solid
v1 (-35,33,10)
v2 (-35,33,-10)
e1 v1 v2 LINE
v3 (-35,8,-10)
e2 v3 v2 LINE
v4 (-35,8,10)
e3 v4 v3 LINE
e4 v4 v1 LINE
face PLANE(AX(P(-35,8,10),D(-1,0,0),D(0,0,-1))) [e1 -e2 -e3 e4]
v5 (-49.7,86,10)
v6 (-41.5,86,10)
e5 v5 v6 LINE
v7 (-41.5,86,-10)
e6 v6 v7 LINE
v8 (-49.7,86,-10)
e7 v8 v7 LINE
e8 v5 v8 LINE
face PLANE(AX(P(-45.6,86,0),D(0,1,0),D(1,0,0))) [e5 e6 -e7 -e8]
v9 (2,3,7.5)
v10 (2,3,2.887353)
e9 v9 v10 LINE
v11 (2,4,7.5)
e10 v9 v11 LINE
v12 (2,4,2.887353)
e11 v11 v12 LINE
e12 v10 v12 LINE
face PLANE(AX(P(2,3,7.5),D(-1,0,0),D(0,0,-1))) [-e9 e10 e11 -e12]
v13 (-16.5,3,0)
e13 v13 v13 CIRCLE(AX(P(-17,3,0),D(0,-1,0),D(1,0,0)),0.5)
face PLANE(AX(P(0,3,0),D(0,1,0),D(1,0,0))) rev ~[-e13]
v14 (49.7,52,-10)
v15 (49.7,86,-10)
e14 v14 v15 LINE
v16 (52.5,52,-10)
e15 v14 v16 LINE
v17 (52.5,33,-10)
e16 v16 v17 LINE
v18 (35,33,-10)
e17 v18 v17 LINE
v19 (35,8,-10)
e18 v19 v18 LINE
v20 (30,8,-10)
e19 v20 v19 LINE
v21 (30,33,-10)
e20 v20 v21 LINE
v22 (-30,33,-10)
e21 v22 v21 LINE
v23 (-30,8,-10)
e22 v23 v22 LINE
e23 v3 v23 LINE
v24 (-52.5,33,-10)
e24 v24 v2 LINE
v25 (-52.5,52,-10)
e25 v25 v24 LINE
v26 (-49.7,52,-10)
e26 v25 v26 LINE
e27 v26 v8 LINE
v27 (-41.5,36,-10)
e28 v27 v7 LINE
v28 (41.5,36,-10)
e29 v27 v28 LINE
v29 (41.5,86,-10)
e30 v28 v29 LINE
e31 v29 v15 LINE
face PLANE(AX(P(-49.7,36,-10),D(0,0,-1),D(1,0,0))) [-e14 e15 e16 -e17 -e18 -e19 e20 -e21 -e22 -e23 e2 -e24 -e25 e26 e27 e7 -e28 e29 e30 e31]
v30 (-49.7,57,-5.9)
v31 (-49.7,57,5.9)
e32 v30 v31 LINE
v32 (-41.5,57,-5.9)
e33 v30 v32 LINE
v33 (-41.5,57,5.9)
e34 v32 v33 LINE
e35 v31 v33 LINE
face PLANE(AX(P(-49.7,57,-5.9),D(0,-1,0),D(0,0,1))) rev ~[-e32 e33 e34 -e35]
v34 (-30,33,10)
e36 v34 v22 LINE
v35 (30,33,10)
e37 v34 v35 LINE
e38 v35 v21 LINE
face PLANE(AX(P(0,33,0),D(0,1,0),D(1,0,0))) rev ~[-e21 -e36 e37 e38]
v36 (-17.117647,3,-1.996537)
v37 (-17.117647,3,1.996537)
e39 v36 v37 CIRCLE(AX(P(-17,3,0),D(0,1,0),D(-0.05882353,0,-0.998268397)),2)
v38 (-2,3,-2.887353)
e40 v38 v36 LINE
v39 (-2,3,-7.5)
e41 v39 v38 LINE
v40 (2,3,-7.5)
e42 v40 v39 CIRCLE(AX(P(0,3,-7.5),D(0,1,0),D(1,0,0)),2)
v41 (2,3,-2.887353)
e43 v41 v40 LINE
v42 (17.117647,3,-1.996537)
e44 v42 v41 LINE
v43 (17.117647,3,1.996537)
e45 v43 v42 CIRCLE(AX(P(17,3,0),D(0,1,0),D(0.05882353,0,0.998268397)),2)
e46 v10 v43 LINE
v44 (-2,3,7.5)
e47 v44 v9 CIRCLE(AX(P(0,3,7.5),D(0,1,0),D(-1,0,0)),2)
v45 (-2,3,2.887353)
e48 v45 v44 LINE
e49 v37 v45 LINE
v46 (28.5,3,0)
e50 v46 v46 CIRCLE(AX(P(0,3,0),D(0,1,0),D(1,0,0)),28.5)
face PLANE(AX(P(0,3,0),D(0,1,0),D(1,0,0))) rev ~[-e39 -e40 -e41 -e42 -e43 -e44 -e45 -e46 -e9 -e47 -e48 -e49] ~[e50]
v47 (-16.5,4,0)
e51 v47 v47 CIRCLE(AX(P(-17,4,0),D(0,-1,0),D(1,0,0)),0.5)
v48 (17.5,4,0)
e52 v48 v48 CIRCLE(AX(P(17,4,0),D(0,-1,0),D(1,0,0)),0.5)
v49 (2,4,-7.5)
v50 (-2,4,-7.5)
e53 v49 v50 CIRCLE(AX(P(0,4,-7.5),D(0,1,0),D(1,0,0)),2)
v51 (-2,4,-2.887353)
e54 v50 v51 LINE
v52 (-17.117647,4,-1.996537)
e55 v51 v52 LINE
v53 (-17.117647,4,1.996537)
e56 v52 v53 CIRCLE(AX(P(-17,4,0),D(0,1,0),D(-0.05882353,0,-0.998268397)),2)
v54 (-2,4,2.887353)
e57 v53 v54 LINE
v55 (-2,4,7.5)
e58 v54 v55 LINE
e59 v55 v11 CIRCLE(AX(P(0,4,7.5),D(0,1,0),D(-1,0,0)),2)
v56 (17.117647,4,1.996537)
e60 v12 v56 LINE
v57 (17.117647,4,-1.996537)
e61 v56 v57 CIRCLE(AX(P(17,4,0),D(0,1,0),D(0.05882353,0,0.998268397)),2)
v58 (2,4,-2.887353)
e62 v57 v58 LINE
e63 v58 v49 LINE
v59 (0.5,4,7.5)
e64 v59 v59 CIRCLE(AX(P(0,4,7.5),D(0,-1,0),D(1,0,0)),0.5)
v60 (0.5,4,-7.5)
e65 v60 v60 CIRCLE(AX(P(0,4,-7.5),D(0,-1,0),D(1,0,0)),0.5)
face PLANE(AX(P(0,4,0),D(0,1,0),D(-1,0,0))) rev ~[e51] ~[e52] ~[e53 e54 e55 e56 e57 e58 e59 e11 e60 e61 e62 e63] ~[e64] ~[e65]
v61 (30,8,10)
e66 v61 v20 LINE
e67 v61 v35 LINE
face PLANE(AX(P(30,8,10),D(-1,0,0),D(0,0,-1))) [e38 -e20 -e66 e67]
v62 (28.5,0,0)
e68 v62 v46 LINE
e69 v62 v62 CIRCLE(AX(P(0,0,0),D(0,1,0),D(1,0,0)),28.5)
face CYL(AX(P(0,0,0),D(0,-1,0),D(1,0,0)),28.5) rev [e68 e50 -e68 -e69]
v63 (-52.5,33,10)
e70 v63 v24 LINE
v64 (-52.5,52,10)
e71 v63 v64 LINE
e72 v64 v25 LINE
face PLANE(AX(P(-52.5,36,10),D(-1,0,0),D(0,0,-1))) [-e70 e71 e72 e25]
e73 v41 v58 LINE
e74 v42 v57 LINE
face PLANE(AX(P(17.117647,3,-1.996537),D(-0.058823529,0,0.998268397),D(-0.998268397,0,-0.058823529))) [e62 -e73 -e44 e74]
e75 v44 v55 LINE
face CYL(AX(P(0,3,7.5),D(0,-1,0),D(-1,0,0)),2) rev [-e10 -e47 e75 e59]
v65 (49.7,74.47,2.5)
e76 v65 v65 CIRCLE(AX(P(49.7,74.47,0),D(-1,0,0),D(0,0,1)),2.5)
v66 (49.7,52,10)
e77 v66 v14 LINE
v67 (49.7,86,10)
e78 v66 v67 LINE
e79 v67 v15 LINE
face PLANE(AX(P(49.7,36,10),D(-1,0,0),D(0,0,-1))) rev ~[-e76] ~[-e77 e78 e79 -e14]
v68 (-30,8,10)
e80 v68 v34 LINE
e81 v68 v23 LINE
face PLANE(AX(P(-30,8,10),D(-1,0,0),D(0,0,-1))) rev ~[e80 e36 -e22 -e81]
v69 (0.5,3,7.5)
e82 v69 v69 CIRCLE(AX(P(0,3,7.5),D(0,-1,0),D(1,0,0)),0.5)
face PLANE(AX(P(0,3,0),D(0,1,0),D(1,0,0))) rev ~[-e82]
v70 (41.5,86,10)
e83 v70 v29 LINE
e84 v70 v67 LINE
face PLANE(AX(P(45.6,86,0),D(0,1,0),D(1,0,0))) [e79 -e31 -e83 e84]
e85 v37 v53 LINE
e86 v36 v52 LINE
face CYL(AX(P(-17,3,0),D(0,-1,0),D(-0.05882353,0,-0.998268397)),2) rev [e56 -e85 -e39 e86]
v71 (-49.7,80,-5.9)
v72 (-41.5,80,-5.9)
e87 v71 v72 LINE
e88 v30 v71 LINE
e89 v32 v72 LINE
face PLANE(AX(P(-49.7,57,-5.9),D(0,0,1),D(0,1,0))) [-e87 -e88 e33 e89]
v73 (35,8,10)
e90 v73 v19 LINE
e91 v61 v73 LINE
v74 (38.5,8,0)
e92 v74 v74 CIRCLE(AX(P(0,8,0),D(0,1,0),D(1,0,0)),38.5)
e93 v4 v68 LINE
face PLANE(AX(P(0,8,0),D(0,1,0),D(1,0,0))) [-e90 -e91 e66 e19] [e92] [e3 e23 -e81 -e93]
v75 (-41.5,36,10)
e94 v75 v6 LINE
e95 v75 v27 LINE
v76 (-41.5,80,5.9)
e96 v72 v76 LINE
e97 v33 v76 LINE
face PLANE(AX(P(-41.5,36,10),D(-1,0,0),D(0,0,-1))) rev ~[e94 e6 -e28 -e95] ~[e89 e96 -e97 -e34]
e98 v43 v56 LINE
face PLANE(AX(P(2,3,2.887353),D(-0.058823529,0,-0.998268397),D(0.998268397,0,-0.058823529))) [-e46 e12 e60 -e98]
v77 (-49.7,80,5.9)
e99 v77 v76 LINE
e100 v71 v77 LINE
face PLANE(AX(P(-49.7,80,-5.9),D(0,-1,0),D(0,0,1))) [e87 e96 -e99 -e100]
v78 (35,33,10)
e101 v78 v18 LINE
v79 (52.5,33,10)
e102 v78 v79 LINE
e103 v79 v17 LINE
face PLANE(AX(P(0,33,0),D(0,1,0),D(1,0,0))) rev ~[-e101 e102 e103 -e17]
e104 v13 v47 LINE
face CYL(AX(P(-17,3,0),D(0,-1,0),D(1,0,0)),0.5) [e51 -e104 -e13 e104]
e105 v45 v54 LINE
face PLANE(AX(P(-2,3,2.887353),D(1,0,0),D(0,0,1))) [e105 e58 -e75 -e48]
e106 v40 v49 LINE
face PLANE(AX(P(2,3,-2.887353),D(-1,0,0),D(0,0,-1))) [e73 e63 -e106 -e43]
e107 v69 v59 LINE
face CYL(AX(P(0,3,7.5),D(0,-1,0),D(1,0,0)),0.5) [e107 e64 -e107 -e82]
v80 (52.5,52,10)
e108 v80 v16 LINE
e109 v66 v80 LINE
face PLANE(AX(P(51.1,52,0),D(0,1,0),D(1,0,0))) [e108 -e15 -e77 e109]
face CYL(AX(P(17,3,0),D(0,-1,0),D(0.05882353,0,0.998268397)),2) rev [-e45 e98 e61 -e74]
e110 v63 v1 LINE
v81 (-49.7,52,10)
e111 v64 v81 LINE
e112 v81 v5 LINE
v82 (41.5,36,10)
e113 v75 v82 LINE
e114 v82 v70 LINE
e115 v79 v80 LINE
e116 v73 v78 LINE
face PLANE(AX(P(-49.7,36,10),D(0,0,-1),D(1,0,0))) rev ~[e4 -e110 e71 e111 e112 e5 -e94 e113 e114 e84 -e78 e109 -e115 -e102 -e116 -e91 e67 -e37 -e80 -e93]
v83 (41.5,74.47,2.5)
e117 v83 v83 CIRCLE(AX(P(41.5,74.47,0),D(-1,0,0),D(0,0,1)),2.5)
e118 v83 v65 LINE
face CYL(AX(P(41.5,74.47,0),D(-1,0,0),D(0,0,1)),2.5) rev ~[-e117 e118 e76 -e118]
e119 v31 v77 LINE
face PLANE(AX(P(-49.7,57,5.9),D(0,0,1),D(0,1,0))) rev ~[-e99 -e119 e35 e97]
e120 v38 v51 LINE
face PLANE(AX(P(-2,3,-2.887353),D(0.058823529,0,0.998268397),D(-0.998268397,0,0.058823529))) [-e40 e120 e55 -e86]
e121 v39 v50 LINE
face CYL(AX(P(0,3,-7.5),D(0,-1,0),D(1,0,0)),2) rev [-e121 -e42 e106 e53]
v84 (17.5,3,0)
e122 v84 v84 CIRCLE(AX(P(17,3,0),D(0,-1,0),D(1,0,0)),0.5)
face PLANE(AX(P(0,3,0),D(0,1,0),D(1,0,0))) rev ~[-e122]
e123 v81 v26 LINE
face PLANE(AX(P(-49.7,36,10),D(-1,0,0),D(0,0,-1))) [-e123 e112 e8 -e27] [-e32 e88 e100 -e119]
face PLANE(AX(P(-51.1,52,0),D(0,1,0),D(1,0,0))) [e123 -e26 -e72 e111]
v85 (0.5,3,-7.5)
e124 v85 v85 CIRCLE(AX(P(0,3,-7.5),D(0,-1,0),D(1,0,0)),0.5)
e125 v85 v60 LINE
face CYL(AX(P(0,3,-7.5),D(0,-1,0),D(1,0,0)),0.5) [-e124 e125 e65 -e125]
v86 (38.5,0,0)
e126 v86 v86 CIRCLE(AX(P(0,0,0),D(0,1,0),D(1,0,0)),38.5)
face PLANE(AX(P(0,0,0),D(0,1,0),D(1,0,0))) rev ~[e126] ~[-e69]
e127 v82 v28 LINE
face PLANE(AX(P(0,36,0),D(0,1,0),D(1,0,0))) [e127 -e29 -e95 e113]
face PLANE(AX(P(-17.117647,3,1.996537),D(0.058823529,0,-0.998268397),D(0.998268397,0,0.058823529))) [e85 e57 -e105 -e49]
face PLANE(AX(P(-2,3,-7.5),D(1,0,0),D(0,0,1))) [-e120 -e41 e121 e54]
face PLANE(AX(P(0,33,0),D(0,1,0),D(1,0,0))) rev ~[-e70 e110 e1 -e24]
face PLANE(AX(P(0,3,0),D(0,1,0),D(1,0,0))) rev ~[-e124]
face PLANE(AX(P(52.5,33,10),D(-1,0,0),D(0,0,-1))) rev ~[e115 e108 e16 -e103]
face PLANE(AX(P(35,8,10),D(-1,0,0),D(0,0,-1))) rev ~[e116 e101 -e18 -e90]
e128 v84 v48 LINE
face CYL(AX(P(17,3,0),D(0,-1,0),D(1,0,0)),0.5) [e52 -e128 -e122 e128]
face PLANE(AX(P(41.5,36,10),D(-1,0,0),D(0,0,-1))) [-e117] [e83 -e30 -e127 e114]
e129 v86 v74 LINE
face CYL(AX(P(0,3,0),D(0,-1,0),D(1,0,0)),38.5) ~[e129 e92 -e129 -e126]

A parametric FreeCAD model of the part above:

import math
import FreeCAD as App
import Part
import Sketcher
from FreeCAD import Vector


def add_polygon(sketch, points):
    """Adds a closed chain of lines whose ends are joined by coincident constraints."""
    first, n = sketch.GeometryCount, len(points)
    for a, b in zip(points, points[1:] + points[:1]):
        sketch.addGeometry(Part.LineSegment(App.Vector(*a, 0), App.Vector(*b, 0)), False)
    for i in range(n):
        sketch.addConstraint(Sketcher.Constraint("Coincident", first + i, 2, first + (i + 1) % n, 1))

doc = App.newDocument("Part")
body = doc.addObject("PartDesign::Body", "Body")

# Sketch on XZ plane
sketch1 = body.newObject("Sketcher::SketchObject", "Sketch")
sketch1.AttachmentSupport = (doc.getObject("XZ_Plane"), [""])
sketch1.MapMode = "FlatFace"
sketch1.addGeometry(Part.Circle(Vector(0, 0, 0), Vector(0, 0, 1), 38), False)
sketch1.addGeometry(Part.Circle(Vector(0, 0, 0), Vector(0, 0, 1), 28), False)
sketch1.addConstraint(Sketcher.Constraint("Coincident", 0, 3, -1, 1))
sketch1.addConstraint(Sketcher.Constraint("Coincident", 1, 3, -1, 1))
sketch1.addConstraint(Sketcher.Constraint("Diameter", 0, 77.0))
sketch1.addConstraint(Sketcher.Constraint("Diameter", 1, 57.0))
pad1 = body.newObject("PartDesign::Pad", "Pad")
pad1.Profile = sketch1
pad1.Length = 3
pad1.Reversed = True

# Sketch on XZ plane
sketch2 = body.newObject("Sketcher::SketchObject", "Sketch001")
sketch2.AttachmentSupport = (doc.getObject("XZ_Plane"), [""])
sketch2.MapMode = "FlatFace"
sketch2.AttachmentOffset = App.Placement(Vector(0, 0, -3), App.Rotation())
sketch2.addGeometry(Part.Circle(Vector(0, 0, 0), Vector(0, 0, 1), 38), False)
sketch2.addConstraint(Sketcher.Constraint("Coincident", 0, 3, -1, 1))
sketch2.addConstraint(Sketcher.Constraint("Diameter", 0, 77.0))
pad2 = body.newObject("PartDesign::Pad", "Pad001")
pad2.Profile = sketch2
pad2.Length = 5
pad2.Reversed = True

# Sketch on XZ plane
sketch3 = body.newObject("Sketcher::SketchObject", "Sketch002")
sketch3.AttachmentSupport = (doc.getObject("XZ_Plane"), [""])
sketch3.MapMode = "FlatFace"
sketch3.AttachmentOffset = App.Placement(Vector(0, 0, -8), App.Rotation())
add_polygon(sketch3, [(-35, -10), (-35, 10), (-30, 10), (-30, -10)])  # lines 0-3
add_polygon(sketch3, [(30, -10), (30, 10), (35, 10), (35, -10)])  # lines 4-7
sketch3.addConstraint(Sketcher.Constraint("Vertical", 0))
sketch3.addConstraint(Sketcher.Constraint("Horizontal", 1))
sketch3.addConstraint(Sketcher.Constraint("Vertical", 2))
sketch3.addConstraint(Sketcher.Constraint("Horizontal", 3))
sketch3.addConstraint(Sketcher.Constraint("Vertical", 4))
sketch3.addConstraint(Sketcher.Constraint("Horizontal", 5))
sketch3.addConstraint(Sketcher.Constraint("Vertical", 6))
sketch3.addConstraint(Sketcher.Constraint("Horizontal", 7))
sketch3.addConstraint(Sketcher.Constraint("Symmetric", 2, 2, 4, 2, -1, 1))
sketch3.addConstraint(Sketcher.Constraint("Symmetric", 0, 2, 6, 2, -1, 1))
sketch3.addConstraint(Sketcher.Constraint("Horizontal", 1, 2, 4, 2))
sketch3.addConstraint(Sketcher.Constraint("DistanceX", 1, 1, 1, 2, 5.0))
sketch3.addConstraint(Sketcher.Constraint("DistanceY", 0, 1, 0, 2, 20.0))
sketch3.addConstraint(Sketcher.Constraint("DistanceX", 0, 2, -1, 1, 35.0))
pad3 = body.newObject("PartDesign::Pad", "Pad002")
pad3.Profile = sketch3
pad3.Length = 25
pad3.Reversed = True

# Sketch on XZ plane
sketch4 = body.newObject("Sketcher::SketchObject", "Sketch003")
sketch4.AttachmentSupport = (doc.getObject("XZ_Plane"), [""])
sketch4.MapMode = "FlatFace"
sketch4.AttachmentOffset = App.Placement(Vector(0, 0, -33), App.Rotation())
add_polygon(sketch4, [(-52, -10), (-52, 10), (52, 10), (52, -10)])  # lines 0-3
sketch4.addConstraint(Sketcher.Constraint("Vertical", 0))
sketch4.addConstraint(Sketcher.Constraint("Horizontal", 1))
sketch4.addConstraint(Sketcher.Constraint("Vertical", 2))
sketch4.addConstraint(Sketcher.Constraint("Horizontal", 3))
sketch4.addConstraint(Sketcher.Constraint("Symmetric", 0, 2, 2, 2, -1, 1))
sketch4.addConstraint(Sketcher.Constraint("DistanceX", 1, 1, 1, 2, 105.0))
sketch4.addConstraint(Sketcher.Constraint("DistanceY", 0, 1, 0, 2, 20.0))
pad4 = body.newObject("PartDesign::Pad", "Pad003")
pad4.Profile = sketch4
pad4.Length = 3
pad4.Reversed = True

# Sketch on XZ plane
sketch5 = body.newObject("Sketcher::SketchObject", "Sketch004")
sketch5.AttachmentSupport = (doc.getObject("XZ_Plane"), [""])
sketch5.MapMode = "FlatFace"
sketch5.AttachmentOffset = App.Placement(Vector(0, 0, -36), App.Rotation())
add_polygon(sketch5, [(-52.5, -10), (-52.5, 10), (-49.7, 10), (-49.7, -10)])  # lines 0-3
add_polygon(sketch5, [(49.7, -10), (49.7, 10), (52.5, 10), (52.5, -10)])  # lines 4-7
sketch5.addConstraint(Sketcher.Constraint("Vertical", 0))
sketch5.addConstraint(Sketcher.Constraint("Horizontal", 1))
sketch5.addConstraint(Sketcher.Constraint("Vertical", 2))
sketch5.addConstraint(Sketcher.Constraint("Horizontal", 3))
sketch5.addConstraint(Sketcher.Constraint("Vertical", 4))
sketch5.addConstraint(Sketcher.Constraint("Horizontal", 5))
sketch5.addConstraint(Sketcher.Constraint("Vertical", 6))
sketch5.addConstraint(Sketcher.Constraint("Horizontal", 7))
sketch5.addConstraint(Sketcher.Constraint("Symmetric", 2, 2, 4, 2, -1, 1))
sketch5.addConstraint(Sketcher.Constraint("Symmetric", 0, 2, 6, 2, -1, 1))
sketch5.addConstraint(Sketcher.Constraint("Horizontal", 1, 2, 4, 2))
sketch5.addConstraint(Sketcher.Constraint("DistanceY", 0, 1, 0, 2, 20.0))
sketch5.addConstraint(Sketcher.Constraint("DistanceX", 1, 1, 1, 2, 2.8))
sketch5.addConstraint(Sketcher.Constraint("DistanceX", 0, 2, 5, 2, 105.0))
pad5 = body.newObject("PartDesign::Pad", "Pad004")
pad5.Profile = sketch5
pad5.Length = 16
pad5.Reversed = True

# Sketch on XZ plane
sketch6 = body.newObject("Sketcher::SketchObject", "Sketch005")
sketch6.AttachmentSupport = (doc.getObject("XZ_Plane"), [""])
sketch6.MapMode = "FlatFace"
sketch6.AttachmentOffset = App.Placement(Vector(0, 0, -36), App.Rotation())
add_polygon(sketch6, [(-50, -10), (-50, 10), (-42, 10), (-42, -10)])  # lines 0-3
add_polygon(sketch6, [(42, -10), (42, 10), (50, 10), (50, -10)])  # lines 4-7
sketch6.addConstraint(Sketcher.Constraint("Vertical", 0))
sketch6.addConstraint(Sketcher.Constraint("Horizontal", 1))
sketch6.addConstraint(Sketcher.Constraint("Vertical", 2))
sketch6.addConstraint(Sketcher.Constraint("Horizontal", 3))
sketch6.addConstraint(Sketcher.Constraint("Vertical", 4))
sketch6.addConstraint(Sketcher.Constraint("Horizontal", 5))
sketch6.addConstraint(Sketcher.Constraint("Vertical", 6))
sketch6.addConstraint(Sketcher.Constraint("Horizontal", 7))
sketch6.addConstraint(Sketcher.Constraint("Symmetric", 2, 2, 4, 2, -1, 1))
sketch6.addConstraint(Sketcher.Constraint("Symmetric", 0, 2, 6, 2, -1, 1))
sketch6.addConstraint(Sketcher.Constraint("Horizontal", 1, 2, 4, 2))
sketch6.addConstraint(Sketcher.Constraint("DistanceY", 0, 1, 0, 2, 20.0))
sketch6.addConstraint(Sketcher.Constraint("DistanceX", 1, 1, 1, 2, 8.2))
sketch6.addConstraint(Sketcher.Constraint("DistanceX", 1, 2, 4, 2, 83.0))
pad6 = body.newObject("PartDesign::Pad", "Pad005")
pad6.Profile = sketch6
pad6.Length = 50
pad6.Reversed = True

# Sketch on YZ plane
sketch7 = body.newObject("Sketcher::SketchObject", "Sketch006")
sketch7.AttachmentSupport = (doc.getObject("YZ_Plane"), [""])
sketch7.MapMode = "FlatFace"
sketch7.AttachmentOffset = App.Placement(Vector(0, 0, -49.7), App.Rotation())
add_polygon(sketch7, [(80, -6), (57, -6), (57, 6), (80, 6)])  # lines 0-3
sketch7.addConstraint(Sketcher.Constraint("Horizontal", 0))
sketch7.addConstraint(Sketcher.Constraint("Vertical", 1))
sketch7.addConstraint(Sketcher.Constraint("Horizontal", 2))
sketch7.addConstraint(Sketcher.Constraint("Vertical", 3))
sketch7.addConstraint(Sketcher.Constraint("DistanceX", 0, 2, 0, 1, 23.0))
sketch7.addConstraint(Sketcher.Constraint("DistanceY", 1, 1, 1, 2, 11.8))
sketch7.addConstraint(Sketcher.Constraint("DistanceX", -1, 1, 0, 2, 57.0))
sketch7.addConstraint(Sketcher.Constraint("DistanceY", 0, 2, -1, 1, 5.9))
pocket1 = body.newObject("PartDesign::Pocket", "Pocket")
pocket1.Profile = sketch7
pocket1.Length = 50
pocket1.Reversed = True

# Sketch on YZ plane
sketch8 = body.newObject("Sketcher::SketchObject", "Sketch007")
sketch8.AttachmentSupport = (doc.getObject("YZ_Plane"), [""])
sketch8.MapMode = "FlatFace"
sketch8.AttachmentOffset = App.Placement(Vector(0, 0, 41.5), App.Rotation())
sketch8.addGeometry(Part.Circle(Vector(74.5, 0, 0), Vector(0, 0, 1), 2.5), False)
sketch8.addConstraint(Sketcher.Constraint("PointOnObject", 0, 3, -1))
sketch8.addConstraint(Sketcher.Constraint("Diameter", 0, 5.0))
sketch8.addConstraint(Sketcher.Constraint("DistanceX", -1, 1, 0, 3, 74.47))
pocket2 = body.newObject("PartDesign::Pocket", "Pocket001")
pocket2.Profile = sketch8
pocket2.Length = 50
pocket2.Reversed = True

# Sketch on XZ plane
sketch9 = body.newObject("Sketcher::SketchObject", "Sketch008")
sketch9.AttachmentSupport = (doc.getObject("XZ_Plane"), [""])
sketch9.MapMode = "FlatFace"
sketch9.AttachmentOffset = App.Placement(Vector(0, 0, -3), App.Rotation())
sketch9.addGeometry(Part.LineSegment(Vector(2, 2.9, 0), Vector(2, 7.5, 0)), False)
sketch9.addGeometry(Part.ArcOfCircle(Part.Circle(Vector(0, 7.5, 0), Vector(0, 0, 1), 2), math.radians(0), math.radians(180)), False)
sketch9.addGeometry(Part.LineSegment(Vector(-2, 7.5, 0), Vector(-2, 2.9, 0)), False)
sketch9.addGeometry(Part.LineSegment(Vector(-2, 2.9, 0), Vector(-17.1, 2, 0)), False)
sketch9.addGeometry(Part.ArcOfCircle(Part.Circle(Vector(-17, 0, 0), Vector(0, 0, 1), 2), math.radians(93), math.radians(267)), False)
sketch9.addGeometry(Part.LineSegment(Vector(-17.1, -2, 0), Vector(-2, -2.9, 0)), False)
sketch9.addGeometry(Part.LineSegment(Vector(-2, -2.9, 0), Vector(-2, -7.5, 0)), False)
sketch9.addGeometry(Part.ArcOfCircle(Part.Circle(Vector(0, -7.5, 0), Vector(0, 0, 1), 2), math.radians(180), math.radians(360)), False)
sketch9.addGeometry(Part.LineSegment(Vector(2, -7.5, 0), Vector(2, -2.9, 0)), False)
sketch9.addGeometry(Part.LineSegment(Vector(2, -2.9, 0), Vector(17.1, -2, 0)), False)
sketch9.addGeometry(Part.ArcOfCircle(Part.Circle(Vector(17, 0, 0), Vector(0, 0, 1), 2), math.radians(-87), math.radians(87)), False)
sketch9.addGeometry(Part.LineSegment(Vector(17.1, 2, 0), Vector(2, 2.9, 0)), False)
sketch9.addGeometry(Part.Circle(Vector(0, -7.5, 0), Vector(0, 0, 1), 0.5), False)
sketch9.addGeometry(Part.Circle(Vector(17, 0, 0), Vector(0, 0, 1), 0.5), False)
sketch9.addGeometry(Part.Circle(Vector(-17, 0, 0), Vector(0, 0, 1), 0.5), False)
sketch9.addGeometry(Part.Circle(Vector(0, 7.5, 0), Vector(0, 0, 1), 0.5), False)
sketch9.addConstraint(Sketcher.Constraint("Tangent", 0, 2, 1, 1))
sketch9.addConstraint(Sketcher.Constraint("Tangent", 1, 2, 2, 1))
sketch9.addConstraint(Sketcher.Constraint("Coincident", 2, 2, 3, 1))
sketch9.addConstraint(Sketcher.Constraint("Tangent", 3, 2, 4, 1))
sketch9.addConstraint(Sketcher.Constraint("Tangent", 4, 2, 5, 1))
sketch9.addConstraint(Sketcher.Constraint("Coincident", 5, 2, 6, 1))
sketch9.addConstraint(Sketcher.Constraint("Tangent", 6, 2, 7, 1))
sketch9.addConstraint(Sketcher.Constraint("Tangent", 7, 2, 8, 1))
sketch9.addConstraint(Sketcher.Constraint("Coincident", 8, 2, 9, 1))
sketch9.addConstraint(Sketcher.Constraint("Tangent", 9, 2, 10, 1))
sketch9.addConstraint(Sketcher.Constraint("Tangent", 10, 2, 11, 1))
sketch9.addConstraint(Sketcher.Constraint("Coincident", 11, 2, 0, 1))
sketch9.addConstraint(Sketcher.Constraint("Vertical", 0))
sketch9.addConstraint(Sketcher.Constraint("Vertical", 2))
sketch9.addConstraint(Sketcher.Constraint("Vertical", 6))
sketch9.addConstraint(Sketcher.Constraint("Vertical", 8))
sketch9.addConstraint(Sketcher.Constraint("Coincident", 12, 3, 7, 3))
sketch9.addConstraint(Sketcher.Constraint("Coincident", 13, 3, 10, 3))
sketch9.addConstraint(Sketcher.Constraint("Coincident", 14, 3, 4, 3))
sketch9.addConstraint(Sketcher.Constraint("Coincident", 15, 3, 1, 3))
sketch9.addConstraint(Sketcher.Constraint("Equal", 1, 4))
sketch9.addConstraint(Sketcher.Constraint("Equal", 4, 7))
sketch9.addConstraint(Sketcher.Constraint("Equal", 7, 10))
sketch9.addConstraint(Sketcher.Constraint("Equal", 12, 13))
sketch9.addConstraint(Sketcher.Constraint("Equal", 13, 14))
sketch9.addConstraint(Sketcher.Constraint("Equal", 14, 15))
sketch9.addConstraint(Sketcher.Constraint("Symmetric", 1, 3, 7, 3, -1, 1))
sketch9.addConstraint(Sketcher.Constraint("Symmetric", 4, 3, 10, 3, -1, 1))
sketch9.addConstraint(Sketcher.Constraint("Symmetric", 5, 2, 8, 2, -2))
sketch9.addConstraint(Sketcher.Constraint("Symmetric", 3, 2, 10, 2, -2))
sketch9.addConstraint(Sketcher.Constraint("Parallel", 3, 9))
sketch9.addConstraint(Sketcher.Constraint("Diameter", 12, 1.0))
sketch9.addConstraint(Sketcher.Constraint("Radius", 1, 2.0))
sketch9.addConstraint(Sketcher.Constraint("DistanceX", 4, 3, -1, 1, 17.0))
sketch9.addConstraint(Sketcher.Constraint("DistanceY", 7, 3, 1, 3, 15.0))
sketch9.addConstraint(Sketcher.Constraint("Distance", 3, 15.14387))
pocket3 = body.newObject("PartDesign::Pocket", "Pocket002")
pocket3.Profile = sketch9
pocket3.Length = 1

doc.recompute()
